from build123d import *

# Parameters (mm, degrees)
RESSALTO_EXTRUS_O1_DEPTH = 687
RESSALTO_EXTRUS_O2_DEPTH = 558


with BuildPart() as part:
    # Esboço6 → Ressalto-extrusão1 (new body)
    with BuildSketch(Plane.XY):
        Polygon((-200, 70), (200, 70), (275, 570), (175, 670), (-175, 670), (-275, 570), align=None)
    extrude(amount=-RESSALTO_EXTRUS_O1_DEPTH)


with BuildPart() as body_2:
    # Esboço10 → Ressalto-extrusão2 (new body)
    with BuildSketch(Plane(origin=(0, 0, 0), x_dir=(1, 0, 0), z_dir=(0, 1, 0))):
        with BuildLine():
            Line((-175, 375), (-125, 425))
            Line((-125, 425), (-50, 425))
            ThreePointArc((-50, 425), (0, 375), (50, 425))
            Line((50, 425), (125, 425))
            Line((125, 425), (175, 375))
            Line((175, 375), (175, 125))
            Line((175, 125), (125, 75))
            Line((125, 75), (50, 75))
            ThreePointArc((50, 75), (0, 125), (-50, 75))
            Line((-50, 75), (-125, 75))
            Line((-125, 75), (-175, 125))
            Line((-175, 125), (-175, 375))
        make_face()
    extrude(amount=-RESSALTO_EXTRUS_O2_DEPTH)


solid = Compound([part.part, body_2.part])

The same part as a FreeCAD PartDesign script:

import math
import FreeCAD as App
import Part
import Sketcher

V = App.Vector


def add_polygon(sketch, points):
    """Adds a closed chain of lines whose ends are joined by coincident constraints."""
    first, n = sketch.GeometryCount, len(points)
    for a, b in zip(points, points[1:] + points[:1]):
        sketch.addGeometry(Part.LineSegment(App.Vector(*a, 0), App.Vector(*b, 0)), False)
    for i in range(n):
        sketch.addConstraint(Sketcher.Constraint("Coincident", first + i, 2, first + (i + 1) % n, 1))

doc = App.newDocument("Part")
body = doc.addObject("PartDesign::Body", "Body")

# Sketch on XY plane
sketch1 = body.newObject("Sketcher::SketchObject", "Sketch")
sketch1.AttachmentSupport = (doc.getObject("XY_Plane"), [""])
sketch1.MapMode = "FlatFace"
add_polygon(sketch1, [(-200, 70), (200, 70), (275, 570), (175, 670), (-175, 670), (-275, 570)])  # lines 0-5
sketch1.addConstraint([
    Sketcher.Constraint("Horizontal", 0),
    Sketcher.Constraint("Horizontal", 3),
    Sketcher.Constraint("Symmetric", 1, 2, 4, 2, -2),
    Sketcher.Constraint("Perpendicular", 2, 4),
    Sketcher.Constraint("Equal", 2, 4),
    Sketcher.Constraint("Equal", 1, 5),
    Sketcher.Constraint("DistanceX", 0, 1, 0, 2, 400.0),
    Sketcher.Constraint("DistanceX", 3, 2, 3, 1, 350.0),
    Sketcher.Constraint("DistanceY", -1, 1, 0, 2, 70.0),
    Sketcher.Constraint("DistanceX", -1, 1, 1, 2, 275.0),
    Sketcher.Constraint("DistanceY", -1, 1, 1, 2, 570.0),
])
pad1 = body.newObject("PartDesign::Pad", "Pad")
pad1.Profile = sketch1
pad1.Length = 687
pad1.Reversed = True
body2 = doc.addObject("PartDesign::Body", "Body001")

# Sketch on XZ plane
sketch2 = body2.newObject("Sketcher::SketchObject", "Sketch001")
sketch2.AttachmentSupport = (doc.getObject("XZ_Plane001"), [""])
sketch2.MapMode = "FlatFace"
sketch2.addGeometry([
    Part.LineSegment(V(-125, -425, 0), V(-175, -375, 0)),  # 0
    Part.LineSegment(V(-175, -375, 0), V(-175, -125, 0)),  # 1
    Part.LineSegment(V(-175, -125, 0), V(-125, -75, 0)),  # 2
    Part.LineSegment(V(-125, -75, 0), V(-50, -75, 0)),  # 3
    Part.ArcOfCircle(Part.Circle(V(0, -75, 0), V(0, 0, 1), 50), math.radians(180), math.radians(360)),  # 4
    Part.LineSegment(V(50, -75, 0), V(125, -75, 0)),  # 5
    Part.LineSegment(V(125, -75, 0), V(175, -125, 0)),  # 6
    Part.LineSegment(V(175, -125, 0), V(175, -375, 0)),  # 7
    Part.LineSegment(V(175, -375, 0), V(125, -425, 0)),  # 8
    Part.LineSegment(V(125, -425, 0), V(50, -425, 0)),  # 9
    Part.ArcOfCircle(Part.Circle(V(0, -425, 0), V(0, 0, 1), 50), math.radians(0), math.radians(180)),  # 10
    Part.LineSegment(V(-50, -425, 0), V(-125, -425, 0)),  # 11
], False)
sketch2.addConstraint([
    Sketcher.Constraint("Coincident", 0, 2, 1, 1),
    Sketcher.Constraint("Coincident", 1, 2, 2, 1),
    Sketcher.Constraint("Coincident", 2, 2, 3, 1),
    Sketcher.Constraint("Coincident", 3, 2, 4, 1),
    Sketcher.Constraint("Coincident", 4, 2, 5, 1),
    Sketcher.Constraint("Coincident", 5, 2, 6, 1),
    Sketcher.Constraint("Coincident", 6, 2, 7, 1),
    Sketcher.Constraint("Coincident", 7, 2, 8, 1),
    Sketcher.Constraint("Coincident", 8, 2, 9, 1),
    Sketcher.Constraint("Coincident", 9, 2, 10, 1),
    Sketcher.Constraint("Coincident", 10, 2, 11, 1),
    Sketcher.Constraint("Coincident", 11, 2, 0, 1),
    Sketcher.Constraint("Vertical", 1),
    Sketcher.Constraint("Horizontal", 3),
    Sketcher.Constraint("Horizontal", 5),
    Sketcher.Constraint("Vertical", 7),
    Sketcher.Constraint("Horizontal", 9),
    Sketcher.Constraint("Horizontal", 11),
    Sketcher.Constraint("Equal", 4, 10),
    Sketcher.Constraint("Symmetric", 3, 2, 4, 2, -2),
    Sketcher.Constraint("Symmetric", 1, 2, 6, 2, -2),
    Sketcher.Constraint("Symmetric", 9, 2, 10, 2, -2),
    Sketcher.Constraint("Perpendicular", 0, 2),
    Sketcher.Constraint("Perpendicular", 2, 6),
    Sketcher.Constraint("Perpendicular", 6, 8),
    Sketcher.Constraint("Horizontal", 4, 3, 2, 2),
    Sketcher.Constraint("Horizontal", 0, 2, 7, 2),
    Sketcher.Constraint("Horizontal", 10, 3, 8, 2),
    Sketcher.Constraint("Vertical", 5, 2, 8, 2),
    Sketcher.Constraint("Vertical", 2, 2, 11, 2),
    Sketcher.Constraint("Radius", 4, 50.0),
    Sketcher.Constraint("DistanceX", 3, 1, 3, 2, 75.0),
    Sketcher.Constraint("DistanceY", 1, 1, 1, 2, 250.0),
    Sketcher.Constraint("DistanceY", 4, 3, -1, 1, 75.0),
    Sketcher.Constraint("DistanceY", 10, 3, -1, 1, 425.0),
])
pad2 = body2.newObject("PartDesign::Pad", "Pad001")
pad2.Profile = sketch2
pad2.Length = 558

doc.recompute()
